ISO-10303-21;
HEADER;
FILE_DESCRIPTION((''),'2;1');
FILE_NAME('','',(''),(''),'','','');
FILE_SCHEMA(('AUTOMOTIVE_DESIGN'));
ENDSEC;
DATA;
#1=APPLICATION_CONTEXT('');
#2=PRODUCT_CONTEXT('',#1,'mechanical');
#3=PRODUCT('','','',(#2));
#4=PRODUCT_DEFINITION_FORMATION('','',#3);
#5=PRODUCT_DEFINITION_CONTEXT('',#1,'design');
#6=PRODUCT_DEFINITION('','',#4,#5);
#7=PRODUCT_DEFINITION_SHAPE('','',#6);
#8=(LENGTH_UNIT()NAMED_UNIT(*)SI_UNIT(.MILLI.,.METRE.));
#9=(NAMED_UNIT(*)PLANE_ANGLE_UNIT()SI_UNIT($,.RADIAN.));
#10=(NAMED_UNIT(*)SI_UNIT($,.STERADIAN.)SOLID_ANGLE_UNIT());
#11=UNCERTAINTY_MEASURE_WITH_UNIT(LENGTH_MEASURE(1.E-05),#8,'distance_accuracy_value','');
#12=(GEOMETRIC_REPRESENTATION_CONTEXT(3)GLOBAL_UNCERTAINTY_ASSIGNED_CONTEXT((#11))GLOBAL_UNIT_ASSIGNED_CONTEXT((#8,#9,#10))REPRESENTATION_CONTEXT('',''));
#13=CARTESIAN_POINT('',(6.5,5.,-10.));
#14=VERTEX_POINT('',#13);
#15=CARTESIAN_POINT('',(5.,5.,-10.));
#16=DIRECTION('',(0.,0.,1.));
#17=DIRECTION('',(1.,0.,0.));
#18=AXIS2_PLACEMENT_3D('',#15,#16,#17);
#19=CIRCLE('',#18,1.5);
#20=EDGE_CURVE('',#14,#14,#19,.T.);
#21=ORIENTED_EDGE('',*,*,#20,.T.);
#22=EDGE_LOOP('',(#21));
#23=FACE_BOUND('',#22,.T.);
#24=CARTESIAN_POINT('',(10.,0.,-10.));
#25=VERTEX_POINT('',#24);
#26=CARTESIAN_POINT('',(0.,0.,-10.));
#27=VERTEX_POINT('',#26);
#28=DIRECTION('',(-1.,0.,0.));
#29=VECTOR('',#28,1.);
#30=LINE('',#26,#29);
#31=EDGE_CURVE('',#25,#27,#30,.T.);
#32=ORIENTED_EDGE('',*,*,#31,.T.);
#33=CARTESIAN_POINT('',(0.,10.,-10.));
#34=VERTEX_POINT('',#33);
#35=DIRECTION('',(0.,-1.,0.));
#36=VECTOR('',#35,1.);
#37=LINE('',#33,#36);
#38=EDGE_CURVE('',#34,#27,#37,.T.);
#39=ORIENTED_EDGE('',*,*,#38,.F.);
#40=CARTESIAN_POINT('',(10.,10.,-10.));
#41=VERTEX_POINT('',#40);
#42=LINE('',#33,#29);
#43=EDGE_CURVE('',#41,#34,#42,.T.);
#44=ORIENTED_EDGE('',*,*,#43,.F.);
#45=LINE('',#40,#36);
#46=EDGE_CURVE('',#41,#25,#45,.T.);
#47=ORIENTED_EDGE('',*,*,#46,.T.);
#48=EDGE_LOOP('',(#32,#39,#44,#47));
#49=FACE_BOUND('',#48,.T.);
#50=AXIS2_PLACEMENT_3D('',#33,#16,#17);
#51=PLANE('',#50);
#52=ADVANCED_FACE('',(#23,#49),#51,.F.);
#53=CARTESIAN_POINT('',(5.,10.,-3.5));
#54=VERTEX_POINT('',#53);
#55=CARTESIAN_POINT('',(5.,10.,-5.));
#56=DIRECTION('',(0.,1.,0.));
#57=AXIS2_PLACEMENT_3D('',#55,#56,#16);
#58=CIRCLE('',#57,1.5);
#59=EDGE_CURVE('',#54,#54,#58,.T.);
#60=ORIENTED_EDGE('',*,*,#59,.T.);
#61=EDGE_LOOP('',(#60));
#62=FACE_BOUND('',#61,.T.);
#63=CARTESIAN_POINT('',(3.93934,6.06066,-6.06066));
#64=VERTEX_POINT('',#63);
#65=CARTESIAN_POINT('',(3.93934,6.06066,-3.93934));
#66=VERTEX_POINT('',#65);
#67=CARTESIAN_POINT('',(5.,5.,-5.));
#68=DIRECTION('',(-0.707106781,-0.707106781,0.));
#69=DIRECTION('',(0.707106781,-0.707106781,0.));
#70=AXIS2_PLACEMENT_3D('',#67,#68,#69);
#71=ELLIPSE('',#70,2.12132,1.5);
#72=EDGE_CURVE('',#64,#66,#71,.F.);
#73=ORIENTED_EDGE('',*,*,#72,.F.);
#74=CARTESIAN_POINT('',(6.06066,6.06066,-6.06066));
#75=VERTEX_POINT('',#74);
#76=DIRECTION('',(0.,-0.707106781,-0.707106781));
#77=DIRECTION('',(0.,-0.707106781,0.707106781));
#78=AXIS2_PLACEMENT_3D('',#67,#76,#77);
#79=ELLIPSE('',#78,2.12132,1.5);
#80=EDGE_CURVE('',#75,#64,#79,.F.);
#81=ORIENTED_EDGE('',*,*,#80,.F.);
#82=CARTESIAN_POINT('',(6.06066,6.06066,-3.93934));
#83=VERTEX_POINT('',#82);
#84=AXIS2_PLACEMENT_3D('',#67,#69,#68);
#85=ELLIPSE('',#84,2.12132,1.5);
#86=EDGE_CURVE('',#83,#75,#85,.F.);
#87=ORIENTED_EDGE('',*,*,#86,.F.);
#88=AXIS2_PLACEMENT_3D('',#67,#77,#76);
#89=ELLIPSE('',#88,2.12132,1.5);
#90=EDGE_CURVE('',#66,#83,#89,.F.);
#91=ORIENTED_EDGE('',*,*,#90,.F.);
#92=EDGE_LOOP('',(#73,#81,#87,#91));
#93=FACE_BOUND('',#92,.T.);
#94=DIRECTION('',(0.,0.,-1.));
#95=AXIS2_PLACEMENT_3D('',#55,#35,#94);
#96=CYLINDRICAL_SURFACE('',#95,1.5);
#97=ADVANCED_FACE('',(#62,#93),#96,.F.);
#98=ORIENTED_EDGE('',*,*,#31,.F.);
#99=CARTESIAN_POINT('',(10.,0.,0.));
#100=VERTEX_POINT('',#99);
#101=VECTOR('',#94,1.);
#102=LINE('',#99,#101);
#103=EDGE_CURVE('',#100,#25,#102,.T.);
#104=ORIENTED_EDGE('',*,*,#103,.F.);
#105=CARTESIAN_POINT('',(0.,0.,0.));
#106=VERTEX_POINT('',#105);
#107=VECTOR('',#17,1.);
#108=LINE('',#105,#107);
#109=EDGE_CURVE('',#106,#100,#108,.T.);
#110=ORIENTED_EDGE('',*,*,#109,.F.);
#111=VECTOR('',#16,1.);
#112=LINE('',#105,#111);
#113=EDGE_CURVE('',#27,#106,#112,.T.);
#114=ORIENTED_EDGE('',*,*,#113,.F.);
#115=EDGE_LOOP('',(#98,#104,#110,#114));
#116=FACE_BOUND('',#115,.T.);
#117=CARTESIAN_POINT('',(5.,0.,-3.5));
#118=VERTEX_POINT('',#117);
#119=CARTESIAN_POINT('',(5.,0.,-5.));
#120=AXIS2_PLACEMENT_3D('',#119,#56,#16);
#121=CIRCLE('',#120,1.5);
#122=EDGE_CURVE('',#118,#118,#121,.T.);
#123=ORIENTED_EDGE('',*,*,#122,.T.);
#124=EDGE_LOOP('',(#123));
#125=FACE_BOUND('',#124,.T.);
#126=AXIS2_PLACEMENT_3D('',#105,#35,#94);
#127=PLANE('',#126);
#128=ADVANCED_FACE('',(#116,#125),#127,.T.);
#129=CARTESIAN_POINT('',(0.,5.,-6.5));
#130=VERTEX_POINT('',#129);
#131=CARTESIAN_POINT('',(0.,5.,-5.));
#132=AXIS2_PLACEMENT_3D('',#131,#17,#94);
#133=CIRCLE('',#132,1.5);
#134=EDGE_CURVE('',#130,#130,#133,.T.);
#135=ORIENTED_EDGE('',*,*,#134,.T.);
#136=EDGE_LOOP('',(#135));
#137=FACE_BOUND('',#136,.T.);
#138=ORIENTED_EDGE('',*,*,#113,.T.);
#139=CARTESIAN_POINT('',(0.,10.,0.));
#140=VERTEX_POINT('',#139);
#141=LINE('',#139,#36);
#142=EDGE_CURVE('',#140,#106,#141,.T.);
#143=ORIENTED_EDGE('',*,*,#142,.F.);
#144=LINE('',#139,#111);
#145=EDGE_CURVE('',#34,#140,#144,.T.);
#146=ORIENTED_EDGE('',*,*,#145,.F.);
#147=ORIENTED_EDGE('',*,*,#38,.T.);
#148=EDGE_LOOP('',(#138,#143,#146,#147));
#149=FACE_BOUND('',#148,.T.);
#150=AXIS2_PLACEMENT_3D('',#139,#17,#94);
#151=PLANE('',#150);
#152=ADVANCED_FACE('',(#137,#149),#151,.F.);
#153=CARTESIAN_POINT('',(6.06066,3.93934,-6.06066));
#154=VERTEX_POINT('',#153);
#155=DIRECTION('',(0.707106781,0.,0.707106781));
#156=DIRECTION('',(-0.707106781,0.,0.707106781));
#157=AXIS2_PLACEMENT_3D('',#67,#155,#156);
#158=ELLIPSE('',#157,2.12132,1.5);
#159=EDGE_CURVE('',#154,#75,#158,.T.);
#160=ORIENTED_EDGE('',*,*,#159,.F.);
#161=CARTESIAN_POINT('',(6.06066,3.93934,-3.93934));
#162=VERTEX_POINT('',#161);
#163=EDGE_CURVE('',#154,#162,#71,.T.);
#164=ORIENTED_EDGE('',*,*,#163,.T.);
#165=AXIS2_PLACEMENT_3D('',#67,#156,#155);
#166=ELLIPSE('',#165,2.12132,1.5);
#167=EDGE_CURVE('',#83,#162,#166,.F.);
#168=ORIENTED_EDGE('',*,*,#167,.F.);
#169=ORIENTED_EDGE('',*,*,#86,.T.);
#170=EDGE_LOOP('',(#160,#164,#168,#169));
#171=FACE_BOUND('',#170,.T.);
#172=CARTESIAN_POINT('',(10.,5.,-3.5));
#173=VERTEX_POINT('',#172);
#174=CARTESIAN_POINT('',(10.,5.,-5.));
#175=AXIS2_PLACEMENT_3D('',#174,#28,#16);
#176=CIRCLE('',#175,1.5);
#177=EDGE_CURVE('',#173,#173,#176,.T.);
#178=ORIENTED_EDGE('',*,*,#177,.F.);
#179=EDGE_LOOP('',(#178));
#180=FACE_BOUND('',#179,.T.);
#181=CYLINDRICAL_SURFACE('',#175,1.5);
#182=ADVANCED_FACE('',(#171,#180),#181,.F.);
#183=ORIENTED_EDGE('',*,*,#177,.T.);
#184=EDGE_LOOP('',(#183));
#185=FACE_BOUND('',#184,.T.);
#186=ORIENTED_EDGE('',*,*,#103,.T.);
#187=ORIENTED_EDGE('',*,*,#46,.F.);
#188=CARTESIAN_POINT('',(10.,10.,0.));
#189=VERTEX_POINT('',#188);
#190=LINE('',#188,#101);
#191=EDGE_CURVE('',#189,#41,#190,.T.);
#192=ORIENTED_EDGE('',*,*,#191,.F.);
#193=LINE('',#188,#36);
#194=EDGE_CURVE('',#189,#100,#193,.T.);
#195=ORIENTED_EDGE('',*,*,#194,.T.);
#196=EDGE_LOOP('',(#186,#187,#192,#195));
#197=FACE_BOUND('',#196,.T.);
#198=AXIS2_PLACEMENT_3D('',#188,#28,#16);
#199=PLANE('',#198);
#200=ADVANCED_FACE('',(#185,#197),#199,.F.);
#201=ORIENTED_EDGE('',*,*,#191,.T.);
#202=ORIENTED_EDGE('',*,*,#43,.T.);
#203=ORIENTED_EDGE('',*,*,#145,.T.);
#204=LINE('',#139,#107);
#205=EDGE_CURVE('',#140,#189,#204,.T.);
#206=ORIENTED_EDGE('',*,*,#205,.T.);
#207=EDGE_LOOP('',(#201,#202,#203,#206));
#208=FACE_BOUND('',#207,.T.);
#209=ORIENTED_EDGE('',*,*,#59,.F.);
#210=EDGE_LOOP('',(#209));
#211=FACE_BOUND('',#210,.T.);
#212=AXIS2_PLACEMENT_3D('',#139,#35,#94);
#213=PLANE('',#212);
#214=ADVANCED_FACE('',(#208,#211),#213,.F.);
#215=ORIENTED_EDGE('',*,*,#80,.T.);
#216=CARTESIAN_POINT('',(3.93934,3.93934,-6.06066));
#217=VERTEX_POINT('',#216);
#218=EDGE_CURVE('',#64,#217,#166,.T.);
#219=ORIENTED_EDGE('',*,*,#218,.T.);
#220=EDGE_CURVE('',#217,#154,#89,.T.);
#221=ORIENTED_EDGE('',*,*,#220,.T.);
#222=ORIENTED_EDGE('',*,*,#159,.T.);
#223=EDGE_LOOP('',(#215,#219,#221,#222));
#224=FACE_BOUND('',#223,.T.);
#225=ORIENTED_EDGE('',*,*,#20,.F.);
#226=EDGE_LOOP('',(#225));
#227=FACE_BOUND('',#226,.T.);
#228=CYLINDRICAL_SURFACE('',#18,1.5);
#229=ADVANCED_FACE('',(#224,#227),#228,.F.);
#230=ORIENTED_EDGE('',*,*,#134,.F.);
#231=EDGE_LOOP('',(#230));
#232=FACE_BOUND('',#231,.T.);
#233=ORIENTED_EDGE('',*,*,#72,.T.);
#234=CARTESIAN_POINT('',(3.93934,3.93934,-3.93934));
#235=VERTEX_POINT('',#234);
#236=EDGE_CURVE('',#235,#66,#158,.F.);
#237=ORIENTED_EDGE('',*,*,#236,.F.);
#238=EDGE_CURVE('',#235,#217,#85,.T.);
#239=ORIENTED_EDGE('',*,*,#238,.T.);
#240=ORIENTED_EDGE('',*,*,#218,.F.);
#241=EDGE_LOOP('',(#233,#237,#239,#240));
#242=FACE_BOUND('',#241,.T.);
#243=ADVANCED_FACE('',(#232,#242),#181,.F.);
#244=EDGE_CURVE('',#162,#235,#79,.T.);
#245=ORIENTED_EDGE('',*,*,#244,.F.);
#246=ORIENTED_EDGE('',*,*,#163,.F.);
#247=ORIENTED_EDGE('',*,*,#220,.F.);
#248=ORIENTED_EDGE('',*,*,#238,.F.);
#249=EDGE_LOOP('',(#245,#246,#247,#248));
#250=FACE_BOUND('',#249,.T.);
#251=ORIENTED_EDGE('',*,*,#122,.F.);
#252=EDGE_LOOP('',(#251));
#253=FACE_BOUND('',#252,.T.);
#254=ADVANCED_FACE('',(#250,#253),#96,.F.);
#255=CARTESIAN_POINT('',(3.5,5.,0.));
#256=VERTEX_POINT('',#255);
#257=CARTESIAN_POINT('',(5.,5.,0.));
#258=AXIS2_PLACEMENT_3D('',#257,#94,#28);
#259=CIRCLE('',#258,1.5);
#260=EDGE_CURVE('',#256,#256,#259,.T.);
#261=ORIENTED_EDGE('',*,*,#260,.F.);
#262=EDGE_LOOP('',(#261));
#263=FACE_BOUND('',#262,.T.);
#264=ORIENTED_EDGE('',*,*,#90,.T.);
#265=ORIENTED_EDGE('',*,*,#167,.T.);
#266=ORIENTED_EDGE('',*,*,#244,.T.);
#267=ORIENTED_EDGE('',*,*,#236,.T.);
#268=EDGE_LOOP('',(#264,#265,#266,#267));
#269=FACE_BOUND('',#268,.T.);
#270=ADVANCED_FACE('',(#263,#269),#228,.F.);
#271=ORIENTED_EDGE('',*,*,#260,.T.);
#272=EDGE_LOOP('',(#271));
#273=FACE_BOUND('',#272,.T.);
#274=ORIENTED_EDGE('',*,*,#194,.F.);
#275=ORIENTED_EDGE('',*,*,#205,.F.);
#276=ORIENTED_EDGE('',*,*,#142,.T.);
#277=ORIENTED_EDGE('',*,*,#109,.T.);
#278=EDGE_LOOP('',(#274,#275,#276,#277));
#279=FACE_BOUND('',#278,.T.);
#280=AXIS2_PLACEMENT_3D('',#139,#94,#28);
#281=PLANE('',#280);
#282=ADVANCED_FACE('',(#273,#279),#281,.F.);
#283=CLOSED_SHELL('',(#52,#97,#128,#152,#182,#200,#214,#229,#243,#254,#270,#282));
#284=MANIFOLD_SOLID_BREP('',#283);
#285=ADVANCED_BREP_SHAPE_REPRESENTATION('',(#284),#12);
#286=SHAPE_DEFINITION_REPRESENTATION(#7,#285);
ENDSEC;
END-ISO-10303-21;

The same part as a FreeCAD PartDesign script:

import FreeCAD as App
import Part
import Sketcher
Q = App.Units.Quantity

doc = App.newDocument("Part")
body = doc.addObject("PartDesign::Body", "Body")

sketch1 = doc.addObject("Sketcher::SketchObject", "Sketch")
body.addObject(sketch1)
sketch1.AttachmentSupport = (doc.XZ_Plane, [""])
sketch1.MapMode = "FlatFace"
sketch1.addGeometry([
    Part.LineSegment(App.Vector(0, -10, 0), App.Vector(0, 0, 0)),
    Part.LineSegment(App.Vector(0, 0, 0), App.Vector(10, 0, 0)),
    Part.LineSegment(App.Vector(10, 0, 0), App.Vector(10, -10, 0)),
    Part.LineSegment(App.Vector(10, -10, 0), App.Vector(0, -10, 0)),
    Part.Circle(App.Vector(5, -5, 0), App.Vector(0, 0, 1), 1.5),
], False)
sketch1.addConstraint([
    Sketcher.Constraint("Coincident", 0, 2, 1, 1),
    Sketcher.Constraint("Coincident", 1, 2, 2, 1),
    Sketcher.Constraint("Coincident", 2, 2, 3, 1),
    Sketcher.Constraint("Coincident", 3, 2, 0, 1),
    Sketcher.Constraint("Vertical", 0),
    Sketcher.Constraint("Horizontal", 1),
    Sketcher.Constraint("Vertical", 2),
    Sketcher.Constraint("Horizontal", 3),
    Sketcher.Constraint("Coincident", 0, 2, -1, 1),
    Sketcher.Constraint("Equal", 3, 0),
    Sketcher.Constraint("Diameter", 4, Q("3 mm")),
    Sketcher.Constraint("DistanceX", 1, 1, 1, 2, Q("10 mm")),
    Sketcher.Constraint("DistanceX", -1, 1, 4, 3, Q("5 mm")),
    Sketcher.Constraint("DistanceY", 4, 3, -1, 1, Q("5 mm")),
])
pad1 = doc.addObject("PartDesign::Pad", "Pad")
body.addObject(pad1)
pad1.Profile = sketch1
pad1.Length = 10
pad1.Reversed = True

sketch2 = doc.addObject("Sketcher::SketchObject", "Sketch001")
body.addObject(sketch2)
sketch2.AttachmentSupport = (doc.XY_Plane, [""])
sketch2.MapMode = "FlatFace"
sketch2.addGeometry(Part.Circle(App.Vector(5, 5, 0), App.Vector(0, 0, 1), 1.5), False)
sketch2.addConstraint([
    Sketcher.Constraint("Diameter", 0, Q("3 mm")),
    Sketcher.Constraint("DistanceX", -1, 1, 0, 3, Q("5 mm")),
    Sketcher.Constraint("DistanceY", -1, 1, 0, 3, Q("5 mm")),
])
pocket1 = doc.addObject("PartDesign::Pocket", "Pocket")
body.addObject(pocket1)
pocket1.Profile = sketch2
pocket1.Type = "ThroughAll"
pocket1.Midplane = True

sketch3 = doc.addObject("Sketcher::SketchObject", "Sketch002")
body.addObject(sketch3)
sketch3.AttachmentSupport = (doc.YZ_Plane, [""])
sketch3.MapMode = "FlatFace"
sketch3.addGeometry(Part.Circle(App.Vector(5, -5, 0), App.Vector(0, 0, 1), 1.5), False)
sketch3.addConstraint([
    Sketcher.Constraint("Diameter", 0, Q("3 mm")),
    Sketcher.Constraint("DistanceX", -1, 1, 0, 3, Q("5 mm")),
    Sketcher.Constraint("DistanceY", 0, 3, -1, 1, Q("5 mm")),
])
pocket2 = doc.addObject("PartDesign::Pocket", "Pocket001")
body.addObject(pocket2)
pocket2.Profile = sketch3
pocket2.Type = "ThroughAll"
pocket2.Midplane = True

doc.recompute()
